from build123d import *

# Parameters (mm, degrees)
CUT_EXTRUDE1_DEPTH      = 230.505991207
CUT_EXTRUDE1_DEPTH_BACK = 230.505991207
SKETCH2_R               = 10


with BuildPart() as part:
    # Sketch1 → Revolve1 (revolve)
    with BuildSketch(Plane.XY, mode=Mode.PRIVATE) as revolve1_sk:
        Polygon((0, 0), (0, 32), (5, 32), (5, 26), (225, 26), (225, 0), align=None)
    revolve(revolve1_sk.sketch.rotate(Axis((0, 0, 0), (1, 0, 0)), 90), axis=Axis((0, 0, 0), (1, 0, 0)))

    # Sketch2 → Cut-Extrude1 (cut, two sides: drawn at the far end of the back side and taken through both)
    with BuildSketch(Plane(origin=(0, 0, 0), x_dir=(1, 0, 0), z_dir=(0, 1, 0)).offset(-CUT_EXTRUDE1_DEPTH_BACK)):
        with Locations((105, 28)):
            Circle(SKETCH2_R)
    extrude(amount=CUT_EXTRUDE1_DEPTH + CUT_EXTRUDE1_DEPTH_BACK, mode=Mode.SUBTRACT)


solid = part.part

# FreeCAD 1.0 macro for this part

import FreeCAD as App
import Part
import Sketcher
from FreeCAD import Vector
Q = App.Units.Quantity

doc = App.newDocument("Part")
params = doc.addObject("Spreadsheet::Sheet", "Params")
for row, (alias, value) in enumerate([
    ("sketch1_width", "225 mm"),
    ("sketch1_width2", "220 mm"),
    ("sketch1_height", "32 mm"),
    ("sketch1_height2", "26 mm"),
    ("revolution_angle", "360 deg"),
    ("sketch2_diameter", "20 mm"),
], start=1):
    params.set(f"A{row}", alias)
    params.set(f"B{row}", "=" + value)
    params.setAlias(f"B{row}", alias)

body = doc.addObject("PartDesign::Body", "Body")

# Sketch on XY plane
sketch1 = doc.addObject("Sketcher::SketchObject", "Sketch")
body.addObject(sketch1)
sketch1.AttachmentSupport = (doc.XY_Plane, [""])
sketch1.MapMode = "FlatFace"
sketch1.addGeometry([
    Part.LineSegment(Vector(0, 32, 0), Vector(0, 0, 0)),  # 0
    Part.LineSegment(Vector(0, 0, 0), Vector(225, 0, 0)),  # 1
    Part.LineSegment(Vector(225, 0, 0), Vector(225, 26, 0)),  # 2
    Part.LineSegment(Vector(225, 26, 0), Vector(5, 26, 0)),  # 3
    Part.LineSegment(Vector(5, 26, 0), Vector(5, 32, 0)),  # 4
    Part.LineSegment(Vector(5, 32, 0), Vector(0, 32, 0)),  # 5
], False)
sketch1.addConstraint([
    Sketcher.Constraint("Coincident", 0, 2, 1, 1),
    Sketcher.Constraint("Coincident", 1, 2, 2, 1),
    Sketcher.Constraint("Coincident", 2, 2, 3, 1),
    Sketcher.Constraint("Coincident", 3, 2, 4, 1),
    Sketcher.Constraint("Coincident", 4, 2, 5, 1),
    Sketcher.Constraint("Coincident", 5, 2, 0, 1),
    Sketcher.Constraint("Vertical", 0),
    Sketcher.Constraint("Horizontal", 1),
    Sketcher.Constraint("Vertical", 2),
    Sketcher.Constraint("Horizontal", 3),
    Sketcher.Constraint("Vertical", 4),
    Sketcher.Constraint("Horizontal", 5),
    Sketcher.Constraint("Coincident", 0, 2, -1, 1),
    Sketcher.Constraint("DistanceX", 1, 1, 1, 2, Q("225 mm")),
    Sketcher.Constraint("DistanceX", 3, 2, 3, 1, Q("220 mm")),
    Sketcher.Constraint("DistanceY", 0, 2, 0, 1, Q("32 mm")),
    Sketcher.Constraint("DistanceY", 2, 1, 2, 2, Q("26 mm")),
])
sketch1.setExpression("Constraints[13]", "Params.sketch1_width")
sketch1.setExpression("Constraints[14]", "Params.sketch1_width2")
sketch1.setExpression("Constraints[15]", "Params.sketch1_height")
sketch1.setExpression("Constraints[16]", "Params.sketch1_height2")
revolution = doc.addObject("PartDesign::Revolution", "Revolution")
body.addObject(revolution)
revolution.Profile = sketch1
revolution.ReferenceAxis = (sketch1, ["H_Axis"])
revolution.setExpression("Angle", "Params.revolution_angle")

# Sketch on XZ plane
sketch2 = doc.addObject("Sketcher::SketchObject", "Sketch001")
body.addObject(sketch2)
sketch2.AttachmentSupport = (doc.XZ_Plane, [""])
sketch2.MapMode = "FlatFace"
sketch2.addGeometry(Part.Circle(Vector(105, -28, 0), Vector(0, 0, 1), 10), False)
sketch2.addConstraint([
    Sketcher.Constraint("Diameter", 0, Q("20 mm")),
    Sketcher.Constraint("DistanceX", -1, 1, 0, 3, Q("105 mm")),
    Sketcher.Constraint("DistanceY", 0, 3, -1, 1, Q("28 mm")),
])
sketch2.setExpression("Constraints[0]", "Params.sketch2_diameter")
pocket1 = doc.addObject("PartDesign::Pocket", "Pocket")
body.addObject(pocket1)
pocket1.Profile = sketch2
pocket1.Type = "ThroughAll"
pocket1.Midplane = True

doc.recompute()
